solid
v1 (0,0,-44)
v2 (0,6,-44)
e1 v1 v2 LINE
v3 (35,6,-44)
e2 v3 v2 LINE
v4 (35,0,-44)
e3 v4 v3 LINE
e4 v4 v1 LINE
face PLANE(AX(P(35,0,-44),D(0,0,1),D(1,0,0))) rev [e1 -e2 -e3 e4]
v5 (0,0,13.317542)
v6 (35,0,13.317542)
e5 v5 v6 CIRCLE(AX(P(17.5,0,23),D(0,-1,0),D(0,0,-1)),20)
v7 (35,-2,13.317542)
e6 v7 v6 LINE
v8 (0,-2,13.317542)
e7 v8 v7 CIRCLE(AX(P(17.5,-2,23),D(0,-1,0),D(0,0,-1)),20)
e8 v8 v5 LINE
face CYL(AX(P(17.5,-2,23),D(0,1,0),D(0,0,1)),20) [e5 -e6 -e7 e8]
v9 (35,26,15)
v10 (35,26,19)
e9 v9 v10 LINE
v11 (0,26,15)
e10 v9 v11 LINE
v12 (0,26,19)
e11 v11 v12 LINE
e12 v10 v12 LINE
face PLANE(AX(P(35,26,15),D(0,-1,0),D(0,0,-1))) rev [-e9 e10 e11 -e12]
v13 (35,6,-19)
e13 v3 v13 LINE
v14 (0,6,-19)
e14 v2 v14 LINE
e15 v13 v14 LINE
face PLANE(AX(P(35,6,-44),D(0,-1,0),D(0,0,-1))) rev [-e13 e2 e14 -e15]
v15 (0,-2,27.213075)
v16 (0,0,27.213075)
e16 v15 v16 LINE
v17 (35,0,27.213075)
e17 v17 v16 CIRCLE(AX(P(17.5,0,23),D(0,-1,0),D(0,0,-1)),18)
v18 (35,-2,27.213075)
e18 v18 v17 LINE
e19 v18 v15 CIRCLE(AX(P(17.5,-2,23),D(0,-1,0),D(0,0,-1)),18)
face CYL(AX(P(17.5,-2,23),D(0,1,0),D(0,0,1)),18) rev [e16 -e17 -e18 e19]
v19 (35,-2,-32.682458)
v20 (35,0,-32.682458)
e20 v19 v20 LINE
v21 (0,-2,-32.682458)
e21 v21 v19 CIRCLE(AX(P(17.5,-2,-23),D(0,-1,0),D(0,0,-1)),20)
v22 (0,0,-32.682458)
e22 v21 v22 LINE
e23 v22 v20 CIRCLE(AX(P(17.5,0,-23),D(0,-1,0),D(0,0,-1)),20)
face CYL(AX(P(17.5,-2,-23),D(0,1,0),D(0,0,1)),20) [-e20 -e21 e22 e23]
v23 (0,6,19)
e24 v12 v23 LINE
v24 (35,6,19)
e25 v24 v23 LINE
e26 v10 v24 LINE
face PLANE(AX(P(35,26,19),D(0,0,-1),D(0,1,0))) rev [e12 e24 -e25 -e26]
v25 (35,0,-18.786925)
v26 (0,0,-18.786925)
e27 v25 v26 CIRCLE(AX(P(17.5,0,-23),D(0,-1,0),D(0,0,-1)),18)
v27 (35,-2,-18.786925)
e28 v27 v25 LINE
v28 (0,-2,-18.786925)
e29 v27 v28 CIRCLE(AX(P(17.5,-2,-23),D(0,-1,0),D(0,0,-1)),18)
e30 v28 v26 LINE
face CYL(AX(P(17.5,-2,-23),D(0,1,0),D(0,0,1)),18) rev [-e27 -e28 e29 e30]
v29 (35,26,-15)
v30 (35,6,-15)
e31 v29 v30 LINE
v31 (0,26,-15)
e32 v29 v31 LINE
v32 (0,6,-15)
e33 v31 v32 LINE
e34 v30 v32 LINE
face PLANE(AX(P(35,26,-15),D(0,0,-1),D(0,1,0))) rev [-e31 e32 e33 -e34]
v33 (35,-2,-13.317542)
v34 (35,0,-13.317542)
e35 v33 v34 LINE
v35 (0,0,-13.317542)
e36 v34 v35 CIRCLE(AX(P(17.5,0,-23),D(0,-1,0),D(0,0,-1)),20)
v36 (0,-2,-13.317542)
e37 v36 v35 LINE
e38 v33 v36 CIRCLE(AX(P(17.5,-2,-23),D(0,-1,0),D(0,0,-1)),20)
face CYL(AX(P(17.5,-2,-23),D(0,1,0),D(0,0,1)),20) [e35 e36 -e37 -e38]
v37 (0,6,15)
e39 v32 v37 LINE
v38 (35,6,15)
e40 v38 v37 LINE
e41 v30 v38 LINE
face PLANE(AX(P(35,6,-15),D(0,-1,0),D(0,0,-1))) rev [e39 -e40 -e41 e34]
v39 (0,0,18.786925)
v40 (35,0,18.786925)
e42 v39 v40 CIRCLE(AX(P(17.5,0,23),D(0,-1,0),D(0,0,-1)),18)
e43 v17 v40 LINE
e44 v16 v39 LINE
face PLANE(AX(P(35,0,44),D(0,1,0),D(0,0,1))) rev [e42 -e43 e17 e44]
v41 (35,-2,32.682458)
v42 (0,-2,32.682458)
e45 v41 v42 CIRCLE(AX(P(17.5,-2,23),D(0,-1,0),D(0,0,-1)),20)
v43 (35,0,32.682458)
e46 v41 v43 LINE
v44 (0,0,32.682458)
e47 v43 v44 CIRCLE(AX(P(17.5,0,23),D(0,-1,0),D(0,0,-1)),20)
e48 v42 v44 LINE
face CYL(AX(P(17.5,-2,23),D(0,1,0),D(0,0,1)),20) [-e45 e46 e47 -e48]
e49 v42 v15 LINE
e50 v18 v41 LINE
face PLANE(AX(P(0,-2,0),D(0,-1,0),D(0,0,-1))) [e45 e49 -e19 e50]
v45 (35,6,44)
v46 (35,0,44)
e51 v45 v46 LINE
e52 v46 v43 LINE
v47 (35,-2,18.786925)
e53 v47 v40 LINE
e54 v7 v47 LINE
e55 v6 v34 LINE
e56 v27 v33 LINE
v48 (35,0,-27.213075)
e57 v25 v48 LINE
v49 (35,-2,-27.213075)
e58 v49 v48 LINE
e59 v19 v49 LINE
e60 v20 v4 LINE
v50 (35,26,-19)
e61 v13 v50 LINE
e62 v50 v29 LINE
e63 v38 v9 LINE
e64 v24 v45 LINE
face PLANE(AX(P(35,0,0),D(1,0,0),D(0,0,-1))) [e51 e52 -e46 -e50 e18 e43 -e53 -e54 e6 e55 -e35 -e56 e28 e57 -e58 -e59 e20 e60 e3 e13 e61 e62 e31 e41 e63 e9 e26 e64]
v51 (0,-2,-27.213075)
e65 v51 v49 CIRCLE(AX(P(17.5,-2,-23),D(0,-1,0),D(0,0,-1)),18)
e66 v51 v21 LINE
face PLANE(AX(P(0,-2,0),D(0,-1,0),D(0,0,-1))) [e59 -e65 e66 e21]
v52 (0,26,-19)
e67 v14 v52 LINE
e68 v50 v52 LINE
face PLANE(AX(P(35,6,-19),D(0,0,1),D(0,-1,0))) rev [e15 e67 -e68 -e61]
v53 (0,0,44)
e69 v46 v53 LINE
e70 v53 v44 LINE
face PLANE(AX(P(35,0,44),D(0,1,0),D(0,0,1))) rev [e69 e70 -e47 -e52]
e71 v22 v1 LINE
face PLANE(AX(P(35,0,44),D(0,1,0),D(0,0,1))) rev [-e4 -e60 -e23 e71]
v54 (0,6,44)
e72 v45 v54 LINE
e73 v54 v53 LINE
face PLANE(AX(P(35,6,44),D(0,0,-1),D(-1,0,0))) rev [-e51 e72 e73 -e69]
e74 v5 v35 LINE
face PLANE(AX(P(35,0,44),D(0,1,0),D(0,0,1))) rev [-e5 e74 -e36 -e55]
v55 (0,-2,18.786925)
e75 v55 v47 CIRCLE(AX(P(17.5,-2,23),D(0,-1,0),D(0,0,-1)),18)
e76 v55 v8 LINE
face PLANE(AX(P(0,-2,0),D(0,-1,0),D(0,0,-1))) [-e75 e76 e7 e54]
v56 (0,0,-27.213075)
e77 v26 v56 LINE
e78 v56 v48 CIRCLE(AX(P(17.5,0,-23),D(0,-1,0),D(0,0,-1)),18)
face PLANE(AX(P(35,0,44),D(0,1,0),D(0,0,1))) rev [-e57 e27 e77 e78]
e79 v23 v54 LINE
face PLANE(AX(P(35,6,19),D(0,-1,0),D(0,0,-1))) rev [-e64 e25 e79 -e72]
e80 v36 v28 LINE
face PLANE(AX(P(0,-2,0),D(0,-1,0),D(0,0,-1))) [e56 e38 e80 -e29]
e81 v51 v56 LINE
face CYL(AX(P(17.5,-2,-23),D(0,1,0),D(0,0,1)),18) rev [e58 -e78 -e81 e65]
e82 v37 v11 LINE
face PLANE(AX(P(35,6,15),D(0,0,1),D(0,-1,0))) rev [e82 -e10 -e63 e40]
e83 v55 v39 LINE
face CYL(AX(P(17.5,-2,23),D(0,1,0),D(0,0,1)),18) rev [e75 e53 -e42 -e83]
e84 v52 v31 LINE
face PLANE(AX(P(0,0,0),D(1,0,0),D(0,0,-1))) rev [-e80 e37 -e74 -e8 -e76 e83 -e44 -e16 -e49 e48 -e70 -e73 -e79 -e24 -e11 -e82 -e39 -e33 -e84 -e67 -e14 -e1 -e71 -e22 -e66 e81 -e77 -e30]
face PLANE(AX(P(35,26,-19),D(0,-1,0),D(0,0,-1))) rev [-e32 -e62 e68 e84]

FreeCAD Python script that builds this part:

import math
import FreeCAD as App
import Part
import Sketcher
from FreeCAD import Vector

doc = App.newDocument("Part")
body = doc.addObject("PartDesign::Body", "Body")

# Sketch on YZ plane
sketch1 = body.newObject("Sketcher::SketchObject", "Sketch")
sketch1.AttachmentSupport = (doc.getObject("YZ_Plane"), [""])
sketch1.MapMode = "FlatFace"
sketch1.addGeometry(Part.LineSegment(Vector(0, 44, 0), Vector(0, -44, 0)), False)
sketch1.addGeometry(Part.LineSegment(Vector(0, -44, 0), Vector(6, -44, 0)), False)
sketch1.addGeometry(Part.LineSegment(Vector(6, -44, 0), Vector(6, -19, 0)), False)
sketch1.addGeometry(Part.LineSegment(Vector(6, -19, 0), Vector(26, -19, 0)), False)
sketch1.addGeometry(Part.LineSegment(Vector(26, -19, 0), Vector(26, -15, 0)), False)
sketch1.addGeometry(Part.LineSegment(Vector(26, -15, 0), Vector(6, -15, 0)), False)
sketch1.addGeometry(Part.LineSegment(Vector(6, -15, 0), Vector(6, 15, 0)), False)
sketch1.addGeometry(Part.LineSegment(Vector(6, 15, 0), Vector(26, 15, 0)), False)
sketch1.addGeometry(Part.LineSegment(Vector(26, 15, 0), Vector(26, 19, 0)), False)
sketch1.addGeometry(Part.LineSegment(Vector(26, 19, 0), Vector(6, 19, 0)), False)
sketch1.addGeometry(Part.LineSegment(Vector(6, 19, 0), Vector(6, 44, 0)), False)
sketch1.addGeometry(Part.LineSegment(Vector(6, 44, 0), Vector(0, 44, 0)), False)
sketch1.addConstraint(Sketcher.Constraint("Coincident", 0, 2, 1, 1))
sketch1.addConstraint(Sketcher.Constraint("Coincident", 1, 2, 2, 1))
sketch1.addConstraint(Sketcher.Constraint("Coincident", 2, 2, 3, 1))
sketch1.addConstraint(Sketcher.Constraint("Coincident", 3, 2, 4, 1))
sketch1.addConstraint(Sketcher.Constraint("Coincident", 4, 2, 5, 1))
sketch1.addConstraint(Sketcher.Constraint("Coincident", 5, 2, 6, 1))
sketch1.addConstraint(Sketcher.Constraint("Coincident", 6, 2, 7, 1))
sketch1.addConstraint(Sketcher.Constraint("Coincident", 7, 2, 8, 1))
sketch1.addConstraint(Sketcher.Constraint("Coincident", 8, 2, 9, 1))
sketch1.addConstraint(Sketcher.Constraint("Coincident", 9, 2, 10, 1))
sketch1.addConstraint(Sketcher.Constraint("Coincident", 10, 2, 11, 1))
sketch1.addConstraint(Sketcher.Constraint("Coincident", 11, 2, 0, 1))
sketch1.addConstraint(Sketcher.Constraint("Vertical", 0))
sketch1.addConstraint(Sketcher.Constraint("Horizontal", 1))
sketch1.addConstraint(Sketcher.Constraint("Vertical", 2))
sketch1.addConstraint(Sketcher.Constraint("Horizontal", 3))
sketch1.addConstraint(Sketcher.Constraint("Vertical", 4))
sketch1.addConstraint(Sketcher.Constraint("Horizontal", 5))
sketch1.addConstraint(Sketcher.Constraint("Vertical", 6))
sketch1.addConstraint(Sketcher.Constraint("Horizontal", 7))
sketch1.addConstraint(Sketcher.Constraint("Vertical", 8))
sketch1.addConstraint(Sketcher.Constraint("Horizontal", 9))
sketch1.addConstraint(Sketcher.Constraint("Vertical", 10))
sketch1.addConstraint(Sketcher.Constraint("Horizontal", 11))
sketch1.addConstraint(Sketcher.Constraint("Symmetric", 0, 2, 11, 2, -1, 1))
sketch1.addConstraint(Sketcher.Constraint("Symmetric", 4, 2, 7, 2, -1))
sketch1.addConstraint(Sketcher.Constraint("Symmetric", 2, 2, 9, 2, -1))
sketch1.addConstraint(Sketcher.Constraint("Vertical", 2, 2, 5, 2))
sketch1.addConstraint(Sketcher.Constraint("DistanceX", 1, 1, 1, 2, 6.0))
sketch1.addConstraint(Sketcher.Constraint("DistanceX", 3, 1, 3, 2, 20.0))
sketch1.addConstraint(Sketcher.Constraint("DistanceY", 0, 2, 0, 1, 88.0))
sketch1.addConstraint(Sketcher.Constraint("DistanceY", 2, 1, 2, 2, 25.0))
sketch1.addConstraint(Sketcher.Constraint("DistanceY", 4, 1, 4, 2, 4.0))
pad1 = body.newObject("PartDesign::Pad", "Pad")
pad1.Profile = sketch1
pad1.Length = 35

# Sketch on XZ plane
sketch2 = body.newObject("Sketcher::SketchObject", "Sketch001")
sketch2.AttachmentSupport = (doc.getObject("XZ_Plane"), [""])
sketch2.MapMode = "FlatFace"
sketch2.addGeometry(Part.LineSegment(Vector(35, 27, 0), Vector(35, 33, 0)), False)
sketch2.addGeometry(Part.ArcOfCircle(Part.Circle(Vector(18, 23, 0), Vector(0, 0, 1), 20), math.radians(29), math.radians(151)), False)
sketch2.addGeometry(Part.LineSegment(Vector(0, 33, 0), Vector(0, 27, 0)), False)
sketch2.addGeometry(Part.ArcOfCircle(Part.Circle(Vector(18, 23, 0), Vector(0, 0, 1), 18), math.radians(14), math.radians(166)), False)
sketch2.addGeometry(Part.LineSegment(Vector(35, 13, 0), Vector(35, 19, 0)), False)
sketch2.addGeometry(Part.ArcOfCircle(Part.Circle(Vector(18, 23, 0), Vector(0, 0, 1), 18), math.radians(-166), math.radians(-14)), False)
sketch2.addGeometry(Part.LineSegment(Vector(0, 19, 0), Vector(0, 13, 0)), False)
sketch2.addGeometry(Part.ArcOfCircle(Part.Circle(Vector(18, 23, 0), Vector(0, 0, 1), 20), math.radians(-151), math.radians(-29)), False)
sketch2.addGeometry(Part.LineSegment(Vector(35, -19, 0), Vector(35, -13, 0)), False)
sketch2.addGeometry(Part.ArcOfCircle(Part.Circle(Vector(18, -23, 0), Vector(0, 0, 1), 20), math.radians(29), math.radians(151)), False)
sketch2.addGeometry(Part.LineSegment(Vector(0, -13, 0), Vector(0, -19, 0)), False)
sketch2.addGeometry(Part.ArcOfCircle(Part.Circle(Vector(18, -23, 0), Vector(0, 0, 1), 18), math.radians(14), math.radians(166)), False)
sketch2.addGeometry(Part.LineSegment(Vector(0, -27, 0), Vector(0, -33, 0)), False)
sketch2.addGeometry(Part.ArcOfCircle(Part.Circle(Vector(18, -23, 0), Vector(0, 0, 1), 20), math.radians(-151), math.radians(-29)), False)
sketch2.addGeometry(Part.LineSegment(Vector(35, -33, 0), Vector(35, -27, 0)), False)
sketch2.addGeometry(Part.ArcOfCircle(Part.Circle(Vector(18, -23, 0), Vector(0, 0, 1), 18), math.radians(-166), math.radians(-14)), False)
sketch2.addConstraint(Sketcher.Constraint("Coincident", 0, 2, 1, 1))
sketch2.addConstraint(Sketcher.Constraint("Coincident", 1, 2, 2, 1))
sketch2.addConstraint(Sketcher.Constraint("Coincident", 2, 2, 3, 2))
sketch2.addConstraint(Sketcher.Constraint("Coincident", 3, 1, 0, 1))
sketch2.addConstraint(Sketcher.Constraint("Coincident", 4, 2, 5, 2))
sketch2.addConstraint(Sketcher.Constraint("Coincident", 5, 1, 6, 1))
sketch2.addConstraint(Sketcher.Constraint("Coincident", 6, 2, 7, 1))
sketch2.addConstraint(Sketcher.Constraint("Coincident", 7, 2, 4, 1))
sketch2.addConstraint(Sketcher.Constraint("Coincident", 8, 2, 9, 1))
sketch2.addConstraint(Sketcher.Constraint("Coincident", 9, 2, 10, 1))
sketch2.addConstraint(Sketcher.Constraint("Coincident", 10, 2, 11, 2))
sketch2.addConstraint(Sketcher.Constraint("Coincident", 11, 1, 8, 1))
sketch2.addConstraint(Sketcher.Constraint("Coincident", 12, 2, 13, 1))
sketch2.addConstraint(Sketcher.Constraint("Coincident", 13, 2, 14, 1))
sketch2.addConstraint(Sketcher.Constraint("Coincident", 14, 2, 15, 2))
sketch2.addConstraint(Sketcher.Constraint("Coincident", 15, 1, 12, 1))
sketch2.addConstraint(Sketcher.Constraint("Vertical", 0))
sketch2.addConstraint(Sketcher.Constraint("Vertical", 2))
sketch2.addConstraint(Sketcher.Constraint("Vertical", 4))
sketch2.addConstraint(Sketcher.Constraint("Vertical", 6))
sketch2.addConstraint(Sketcher.Constraint("Vertical", 8))
sketch2.addConstraint(Sketcher.Constraint("Vertical", 10))
sketch2.addConstraint(Sketcher.Constraint("Vertical", 12))
sketch2.addConstraint(Sketcher.Constraint("Vertical", 14))
sketch2.addConstraint(Sketcher.Constraint("Coincident", 3, 3, 1, 3))
sketch2.addConstraint(Sketcher.Constraint("Coincident", 5, 3, 1, 3))
sketch2.addConstraint(Sketcher.Constraint("Coincident", 7, 3, 1, 3))
sketch2.addConstraint(Sketcher.Constraint("Coincident", 11, 3, 9, 3))
sketch2.addConstraint(Sketcher.Constraint("Coincident", 13, 3, 9, 3))
sketch2.addConstraint(Sketcher.Constraint("Coincident", 15, 3, 9, 3))
sketch2.addConstraint(Sketcher.Constraint("Equal", 3, 5))
sketch2.addConstraint(Sketcher.Constraint("Equal", 1, 7))
sketch2.addConstraint(Sketcher.Constraint("Equal", 7, 9))
sketch2.addConstraint(Sketcher.Constraint("Equal", 5, 11))
sketch2.addConstraint(Sketcher.Constraint("Equal", 9, 13))
sketch2.addConstraint(Sketcher.Constraint("Equal", 11, 15))
sketch2.addConstraint(Sketcher.Constraint("Symmetric", 6, 2, 9, 2, -1, 1))
sketch2.addConstraint(Sketcher.Constraint("Symmetric", 1, 2, 12, 2, -1, 1))
sketch2.addConstraint(Sketcher.Constraint("Symmetric", 1, 3, 9, 3, -1))
sketch2.addConstraint(Sketcher.Constraint("Horizontal", 0, 2, 1, 2))
sketch2.addConstraint(Sketcher.Constraint("Horizontal", 4, 2, 5, 1))
sketch2.addConstraint(Sketcher.Constraint("Horizontal", 8, 2, 9, 2))
sketch2.addConstraint(Sketcher.Constraint("Horizontal", 12, 2, 13, 2))
sketch2.addConstraint(Sketcher.Constraint("Radius", 1, 20.0))
sketch2.addConstraint(Sketcher.Constraint("Radius", 3, 18.0))
sketch2.addConstraint(Sketcher.Constraint("DistanceY", -1, 1, 1, 3, 23.0))
sketch2.addConstraint(Sketcher.Constraint("DistanceX", -1, 1, 0, 2, 35.0))
pad2 = body.newObject("PartDesign::Pad", "Pad001")
pad2.Profile = sketch2
pad2.Length = 2

doc.recompute()
